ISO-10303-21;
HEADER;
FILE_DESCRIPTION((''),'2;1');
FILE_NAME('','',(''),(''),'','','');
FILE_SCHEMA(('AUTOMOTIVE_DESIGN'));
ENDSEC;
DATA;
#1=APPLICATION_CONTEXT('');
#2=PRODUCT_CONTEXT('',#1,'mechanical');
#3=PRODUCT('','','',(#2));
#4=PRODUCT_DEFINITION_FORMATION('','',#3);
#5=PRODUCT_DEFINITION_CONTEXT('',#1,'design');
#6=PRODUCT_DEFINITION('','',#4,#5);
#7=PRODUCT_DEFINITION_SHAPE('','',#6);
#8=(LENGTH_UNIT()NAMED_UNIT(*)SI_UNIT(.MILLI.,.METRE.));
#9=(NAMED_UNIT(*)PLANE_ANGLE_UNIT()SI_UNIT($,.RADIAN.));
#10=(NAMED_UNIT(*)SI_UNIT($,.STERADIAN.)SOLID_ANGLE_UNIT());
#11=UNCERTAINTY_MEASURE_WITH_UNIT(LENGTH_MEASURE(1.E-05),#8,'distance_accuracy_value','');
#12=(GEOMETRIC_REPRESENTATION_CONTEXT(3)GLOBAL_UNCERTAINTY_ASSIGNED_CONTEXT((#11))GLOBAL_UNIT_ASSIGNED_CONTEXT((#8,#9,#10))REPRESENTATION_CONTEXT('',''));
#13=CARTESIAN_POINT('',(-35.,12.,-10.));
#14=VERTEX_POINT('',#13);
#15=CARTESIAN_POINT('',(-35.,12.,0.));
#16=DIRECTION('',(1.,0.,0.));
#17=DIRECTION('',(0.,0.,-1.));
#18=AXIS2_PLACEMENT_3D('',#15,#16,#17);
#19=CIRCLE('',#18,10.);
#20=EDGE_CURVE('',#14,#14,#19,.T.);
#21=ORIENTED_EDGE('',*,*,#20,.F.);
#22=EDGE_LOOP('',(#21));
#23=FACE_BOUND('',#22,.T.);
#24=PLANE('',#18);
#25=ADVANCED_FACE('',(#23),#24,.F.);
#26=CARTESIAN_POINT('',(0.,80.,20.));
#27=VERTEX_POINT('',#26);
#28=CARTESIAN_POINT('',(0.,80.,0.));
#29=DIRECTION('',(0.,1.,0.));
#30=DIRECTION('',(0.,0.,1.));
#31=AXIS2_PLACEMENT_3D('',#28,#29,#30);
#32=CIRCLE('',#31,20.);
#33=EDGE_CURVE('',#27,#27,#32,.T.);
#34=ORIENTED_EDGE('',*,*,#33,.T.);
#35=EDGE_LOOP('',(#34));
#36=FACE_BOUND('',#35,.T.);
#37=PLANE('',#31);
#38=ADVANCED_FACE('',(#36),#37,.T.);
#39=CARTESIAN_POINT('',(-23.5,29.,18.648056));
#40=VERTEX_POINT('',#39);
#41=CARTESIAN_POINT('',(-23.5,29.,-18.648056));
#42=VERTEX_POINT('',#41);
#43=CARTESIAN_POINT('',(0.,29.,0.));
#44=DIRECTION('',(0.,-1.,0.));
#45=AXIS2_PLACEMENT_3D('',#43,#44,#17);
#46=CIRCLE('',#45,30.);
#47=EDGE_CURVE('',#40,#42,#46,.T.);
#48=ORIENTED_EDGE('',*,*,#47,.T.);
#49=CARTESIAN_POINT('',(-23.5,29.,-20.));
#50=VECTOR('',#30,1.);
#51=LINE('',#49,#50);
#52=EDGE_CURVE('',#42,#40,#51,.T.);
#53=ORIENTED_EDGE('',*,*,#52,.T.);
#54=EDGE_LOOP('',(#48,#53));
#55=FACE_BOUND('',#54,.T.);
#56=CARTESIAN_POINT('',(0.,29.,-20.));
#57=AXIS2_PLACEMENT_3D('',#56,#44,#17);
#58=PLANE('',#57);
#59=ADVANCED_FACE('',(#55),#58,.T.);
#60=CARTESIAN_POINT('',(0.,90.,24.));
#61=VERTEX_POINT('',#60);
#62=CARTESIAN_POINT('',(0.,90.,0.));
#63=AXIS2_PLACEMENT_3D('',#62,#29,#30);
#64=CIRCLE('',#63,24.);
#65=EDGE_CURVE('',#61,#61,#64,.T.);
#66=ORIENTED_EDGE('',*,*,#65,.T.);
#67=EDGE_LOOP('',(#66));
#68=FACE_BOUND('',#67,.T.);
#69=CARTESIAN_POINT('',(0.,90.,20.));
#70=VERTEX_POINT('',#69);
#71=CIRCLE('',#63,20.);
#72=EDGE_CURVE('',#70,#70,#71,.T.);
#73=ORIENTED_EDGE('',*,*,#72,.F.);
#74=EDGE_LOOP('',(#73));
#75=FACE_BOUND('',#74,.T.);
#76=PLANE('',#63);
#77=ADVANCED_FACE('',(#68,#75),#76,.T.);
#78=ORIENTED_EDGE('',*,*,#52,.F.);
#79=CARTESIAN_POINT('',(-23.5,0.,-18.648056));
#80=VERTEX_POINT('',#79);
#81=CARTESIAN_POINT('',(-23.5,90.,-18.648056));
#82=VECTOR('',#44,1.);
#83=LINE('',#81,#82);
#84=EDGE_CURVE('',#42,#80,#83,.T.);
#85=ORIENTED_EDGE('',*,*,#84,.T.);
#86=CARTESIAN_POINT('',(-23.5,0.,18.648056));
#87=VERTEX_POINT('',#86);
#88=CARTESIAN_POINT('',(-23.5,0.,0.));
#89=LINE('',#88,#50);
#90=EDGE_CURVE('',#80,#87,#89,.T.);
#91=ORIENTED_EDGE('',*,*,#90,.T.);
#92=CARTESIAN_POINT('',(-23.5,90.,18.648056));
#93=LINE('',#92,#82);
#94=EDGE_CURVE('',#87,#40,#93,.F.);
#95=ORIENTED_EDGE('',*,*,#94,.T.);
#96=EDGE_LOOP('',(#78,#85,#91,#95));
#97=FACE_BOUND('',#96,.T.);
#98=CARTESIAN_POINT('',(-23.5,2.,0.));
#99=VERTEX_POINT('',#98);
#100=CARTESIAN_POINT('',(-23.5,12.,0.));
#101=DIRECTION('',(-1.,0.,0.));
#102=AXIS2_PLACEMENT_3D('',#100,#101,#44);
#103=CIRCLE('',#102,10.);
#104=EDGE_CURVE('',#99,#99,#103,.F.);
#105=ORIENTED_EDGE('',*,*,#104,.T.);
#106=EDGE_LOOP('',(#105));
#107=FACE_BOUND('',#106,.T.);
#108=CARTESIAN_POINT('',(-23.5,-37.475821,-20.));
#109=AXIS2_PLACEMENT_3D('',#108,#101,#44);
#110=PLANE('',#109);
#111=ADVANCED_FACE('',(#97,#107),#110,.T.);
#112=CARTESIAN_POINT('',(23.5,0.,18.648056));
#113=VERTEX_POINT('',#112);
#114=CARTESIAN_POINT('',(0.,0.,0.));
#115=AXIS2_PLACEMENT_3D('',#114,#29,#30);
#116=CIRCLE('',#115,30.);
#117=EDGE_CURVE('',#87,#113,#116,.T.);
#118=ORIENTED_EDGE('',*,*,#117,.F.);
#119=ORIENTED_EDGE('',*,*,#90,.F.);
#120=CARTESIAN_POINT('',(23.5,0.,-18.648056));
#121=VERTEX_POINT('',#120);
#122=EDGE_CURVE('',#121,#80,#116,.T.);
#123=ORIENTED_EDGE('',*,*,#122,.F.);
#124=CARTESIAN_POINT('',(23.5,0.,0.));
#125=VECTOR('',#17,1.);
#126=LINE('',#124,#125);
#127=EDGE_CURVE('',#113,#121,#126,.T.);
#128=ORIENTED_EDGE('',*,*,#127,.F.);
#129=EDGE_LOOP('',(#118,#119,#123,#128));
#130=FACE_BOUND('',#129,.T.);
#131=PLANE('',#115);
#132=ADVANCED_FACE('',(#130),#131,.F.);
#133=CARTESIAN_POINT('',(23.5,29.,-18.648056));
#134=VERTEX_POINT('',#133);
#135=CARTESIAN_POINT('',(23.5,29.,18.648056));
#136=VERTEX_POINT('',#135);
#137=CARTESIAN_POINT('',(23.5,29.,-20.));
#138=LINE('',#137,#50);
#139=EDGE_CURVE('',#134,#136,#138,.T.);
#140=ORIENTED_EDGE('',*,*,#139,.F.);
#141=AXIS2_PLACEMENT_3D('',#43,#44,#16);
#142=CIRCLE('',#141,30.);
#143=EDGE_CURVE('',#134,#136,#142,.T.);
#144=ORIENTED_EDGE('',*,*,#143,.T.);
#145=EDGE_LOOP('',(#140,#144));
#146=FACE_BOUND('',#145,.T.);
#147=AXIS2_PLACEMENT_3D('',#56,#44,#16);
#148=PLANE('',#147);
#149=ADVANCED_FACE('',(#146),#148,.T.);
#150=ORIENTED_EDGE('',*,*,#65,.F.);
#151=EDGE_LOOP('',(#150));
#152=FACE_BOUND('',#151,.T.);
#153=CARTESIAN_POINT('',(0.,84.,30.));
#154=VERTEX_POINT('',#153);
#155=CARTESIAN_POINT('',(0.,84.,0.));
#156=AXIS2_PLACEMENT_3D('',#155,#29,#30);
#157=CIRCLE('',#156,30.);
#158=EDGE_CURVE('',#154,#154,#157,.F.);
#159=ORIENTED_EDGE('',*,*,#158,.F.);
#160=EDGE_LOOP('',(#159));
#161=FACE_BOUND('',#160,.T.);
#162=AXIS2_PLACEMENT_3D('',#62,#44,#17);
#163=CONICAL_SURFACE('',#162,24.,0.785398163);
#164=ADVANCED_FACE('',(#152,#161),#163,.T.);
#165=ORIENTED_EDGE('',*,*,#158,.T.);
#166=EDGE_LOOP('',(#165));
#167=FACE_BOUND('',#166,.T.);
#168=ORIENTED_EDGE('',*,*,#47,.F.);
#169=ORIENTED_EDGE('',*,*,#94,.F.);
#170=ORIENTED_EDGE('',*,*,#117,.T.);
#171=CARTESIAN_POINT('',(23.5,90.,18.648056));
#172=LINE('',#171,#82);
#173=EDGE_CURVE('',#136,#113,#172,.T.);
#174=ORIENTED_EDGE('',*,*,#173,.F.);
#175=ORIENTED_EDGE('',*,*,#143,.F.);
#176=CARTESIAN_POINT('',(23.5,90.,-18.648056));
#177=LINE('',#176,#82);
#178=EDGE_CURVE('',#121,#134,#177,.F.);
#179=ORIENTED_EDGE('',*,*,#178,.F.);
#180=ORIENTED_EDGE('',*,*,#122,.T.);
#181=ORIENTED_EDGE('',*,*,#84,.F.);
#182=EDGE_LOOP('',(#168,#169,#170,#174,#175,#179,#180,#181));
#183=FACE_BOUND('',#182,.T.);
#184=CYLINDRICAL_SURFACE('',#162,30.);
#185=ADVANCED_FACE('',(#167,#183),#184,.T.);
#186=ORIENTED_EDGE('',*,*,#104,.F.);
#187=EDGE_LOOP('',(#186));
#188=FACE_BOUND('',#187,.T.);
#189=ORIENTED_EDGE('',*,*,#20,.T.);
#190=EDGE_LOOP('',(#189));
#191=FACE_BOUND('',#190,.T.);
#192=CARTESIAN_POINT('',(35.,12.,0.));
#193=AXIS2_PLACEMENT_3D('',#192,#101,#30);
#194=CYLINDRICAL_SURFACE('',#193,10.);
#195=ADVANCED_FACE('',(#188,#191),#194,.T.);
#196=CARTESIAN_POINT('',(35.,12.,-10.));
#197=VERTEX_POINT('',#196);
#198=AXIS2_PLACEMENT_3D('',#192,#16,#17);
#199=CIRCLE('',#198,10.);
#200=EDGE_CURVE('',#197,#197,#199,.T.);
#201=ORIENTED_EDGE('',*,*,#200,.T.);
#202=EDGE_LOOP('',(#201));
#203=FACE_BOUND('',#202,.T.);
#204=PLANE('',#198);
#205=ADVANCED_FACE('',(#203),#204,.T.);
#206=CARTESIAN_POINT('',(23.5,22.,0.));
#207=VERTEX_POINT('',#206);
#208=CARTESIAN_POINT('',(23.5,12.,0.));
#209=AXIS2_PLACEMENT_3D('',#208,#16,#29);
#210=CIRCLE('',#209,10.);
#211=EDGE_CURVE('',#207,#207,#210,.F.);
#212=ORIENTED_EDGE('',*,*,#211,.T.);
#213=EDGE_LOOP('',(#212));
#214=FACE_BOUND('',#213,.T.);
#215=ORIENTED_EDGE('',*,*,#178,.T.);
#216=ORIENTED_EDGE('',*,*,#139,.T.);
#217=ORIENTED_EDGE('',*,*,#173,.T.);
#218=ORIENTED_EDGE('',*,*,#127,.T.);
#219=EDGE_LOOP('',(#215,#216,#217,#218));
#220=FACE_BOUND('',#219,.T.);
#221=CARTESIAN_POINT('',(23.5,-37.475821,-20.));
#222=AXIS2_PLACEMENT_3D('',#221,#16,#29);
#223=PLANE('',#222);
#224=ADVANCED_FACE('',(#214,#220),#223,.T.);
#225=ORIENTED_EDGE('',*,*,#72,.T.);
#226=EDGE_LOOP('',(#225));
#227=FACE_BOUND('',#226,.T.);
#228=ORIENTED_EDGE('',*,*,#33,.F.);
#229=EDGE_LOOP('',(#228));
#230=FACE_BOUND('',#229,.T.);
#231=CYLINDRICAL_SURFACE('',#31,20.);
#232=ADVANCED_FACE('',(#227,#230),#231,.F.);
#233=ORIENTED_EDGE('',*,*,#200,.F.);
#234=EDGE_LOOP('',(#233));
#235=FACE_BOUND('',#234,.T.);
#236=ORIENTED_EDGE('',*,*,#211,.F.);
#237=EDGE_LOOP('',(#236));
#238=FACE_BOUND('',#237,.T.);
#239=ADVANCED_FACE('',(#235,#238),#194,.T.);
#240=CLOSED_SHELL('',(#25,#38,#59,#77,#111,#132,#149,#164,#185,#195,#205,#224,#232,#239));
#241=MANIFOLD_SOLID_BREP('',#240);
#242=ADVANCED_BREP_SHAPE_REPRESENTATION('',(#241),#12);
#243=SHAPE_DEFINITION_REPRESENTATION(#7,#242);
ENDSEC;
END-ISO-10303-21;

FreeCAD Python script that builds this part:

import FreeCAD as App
import Part
import Sketcher

V = App.Vector


def edges_at(feature, points):
    """Names of the edges that pass closest to the given points."""
    edges = feature.Shape.Edges
    near = lambda p: min(range(len(edges)), key=lambda i: edges[i].distToShape(Part.Vertex(*p))[0])
    return sorted({f"Edge{near(p) + 1}" for p in points})


def add_polygon(sketch, points):
    """Adds a closed chain of lines whose ends are joined by coincident constraints."""
    first, n = sketch.GeometryCount, len(points)
    for a, b in zip(points, points[1:] + points[:1]):
        sketch.addGeometry(Part.LineSegment(App.Vector(*a, 0), App.Vector(*b, 0)), False)
    for i in range(n):
        sketch.addConstraint(Sketcher.Constraint("Coincident", first + i, 2, first + (i + 1) % n, 1))

doc = App.newDocument("Part")
params = doc.addObject("Spreadsheet::Sheet", "Params")
for row, (alias, value) in enumerate([
    ("sketch1_diameter", "60 mm"),
    ("pad1_length", "90 mm"),
    ("sketch2_height", "29 mm"),
    ("sketch2_width", "6.5 mm"),
    ("pocket1_length", "40 mm"),
    ("sketch3_diameter", "20 mm"),
    ("pad2_length", "70 mm"),
    ("sketch4_diameter", "40 mm"),
    ("pocket2_length", "10 mm"),
    ("chamfer_size", "6 mm"),
], start=1):
    params.set(f"A{row}", alias)
    params.set(f"B{row}", "=" + value)
    params.setAlias(f"B{row}", alias)

body = doc.addObject("PartDesign::Body", "Body")

sketch1 = body.newObject("Sketcher::SketchObject", "Sketch")
sketch1.AttachmentSupport = (doc.getObject("XZ_Plane"), [""])
sketch1.MapMode = "FlatFace"
sketch1.addGeometry(Part.Circle(V(0, 0, 0), V(0, 0, 1), 30), False)
sketch1.addConstraint(Sketcher.Constraint("Coincident", 0, 3, -1, 1))
sketch1.addConstraint(Sketcher.Constraint("Diameter", 0, 60.0))
sketch1.setExpression("Constraints[1]", "Params.sketch1_diameter")
pad1 = body.newObject("PartDesign::Pad", "Pad")
pad1.Profile = sketch1
pad1.setExpression("Length", "Params.pad1_length")
pad1.Reversed = True

sketch2 = body.newObject("Sketcher::SketchObject", "Sketch001")
sketch2.AttachmentSupport = (doc.getObject("XY_Plane"), [""])
sketch2.MapMode = "FlatFace"
add_polygon(sketch2, [(-30, 29), (-30, 0), (-23.5, 0), (-23.5, 29)])
add_polygon(sketch2, [(23.5, 29), (23.5, 0), (30, 0), (30, 29)])
sketch2.addConstraint(Sketcher.Constraint("Vertical", 0))
sketch2.addConstraint(Sketcher.Constraint("Horizontal", 1))
sketch2.addConstraint(Sketcher.Constraint("Vertical", 2))
sketch2.addConstraint(Sketcher.Constraint("Horizontal", 3))
sketch2.addConstraint(Sketcher.Constraint("Vertical", 4))
sketch2.addConstraint(Sketcher.Constraint("Horizontal", 5))
sketch2.addConstraint(Sketcher.Constraint("Vertical", 6))
sketch2.addConstraint(Sketcher.Constraint("Horizontal", 7))
sketch2.addConstraint(Sketcher.Constraint("Symmetric", 1, 2, 4, 2, -1, 1))
sketch2.addConstraint(Sketcher.Constraint("Symmetric", 0, 2, 5, 2, -2))
sketch2.addConstraint(Sketcher.Constraint("Horizontal", 3, 2, 6, 2))
sketch2.addConstraint(Sketcher.Constraint("DistanceY", 0, 2, 0, 1, 29.0))
sketch2.addConstraint(Sketcher.Constraint("DistanceX", 1, 1, 1, 2, 6.5))
sketch2.addConstraint(Sketcher.Constraint("DistanceX", 0, 2, -1, 1, 30.0))
sketch2.setExpression("Constraints[19]", "Params.sketch2_height")
sketch2.setExpression("Constraints[20]", "Params.sketch2_width")
pocket1 = body.newObject("PartDesign::Pocket", "Pocket")
pocket1.Profile = sketch2
pocket1.setExpression("Length", "Params.pocket1_length")
pocket1.Midplane = True

sketch3 = body.newObject("Sketcher::SketchObject", "Sketch002")
sketch3.AttachmentSupport = (doc.getObject("YZ_Plane"), [""])
sketch3.MapMode = "FlatFace"
sketch3.addGeometry(Part.Circle(V(12, 0, 0), V(0, 0, 1), 10), False)
sketch3.addConstraint(Sketcher.Constraint("PointOnObject", 0, 3, -1))
sketch3.addConstraint(Sketcher.Constraint("Diameter", 0, 20.0))
sketch3.addConstraint(Sketcher.Constraint("DistanceX", -1, 1, 0, 3, 12.0))
sketch3.setExpression("Constraints[1]", "Params.sketch3_diameter")
pad2 = body.newObject("PartDesign::Pad", "Pad001")
pad2.Profile = sketch3
pad2.setExpression("Length", "Params.pad2_length")
pad2.Midplane = True

sketch4 = body.newObject("Sketcher::SketchObject", "Sketch003")
sketch4.AttachmentSupport = (doc.getObject("XZ_Plane"), [""])
sketch4.MapMode = "FlatFace"
sketch4.AttachmentOffset = App.Placement(V(0, 0, -90), App.Rotation())
sketch4.addGeometry(Part.Circle(V(0, 0, 0), V(0, 0, 1), 20), False)
sketch4.addConstraint(Sketcher.Constraint("Coincident", 0, 3, -1, 1))
sketch4.addConstraint(Sketcher.Constraint("Diameter", 0, 40.0))
sketch4.setExpression("Constraints[1]", "Params.sketch4_diameter")
pocket2 = body.newObject("PartDesign::Pocket", "Pocket001")
pocket2.Profile = sketch4
pocket2.setExpression("Length", "Params.pocket2_length")
pocket2.Reversed = True
doc.recompute()

chamfer = body.newObject("PartDesign::Chamfer", "Chamfer")
chamfer.Base = (pocket2, edges_at(pocket2, [(-30, 90, 0)]))
chamfer.setExpression("Size", "Params.chamfer_size")

doc.recompute()
